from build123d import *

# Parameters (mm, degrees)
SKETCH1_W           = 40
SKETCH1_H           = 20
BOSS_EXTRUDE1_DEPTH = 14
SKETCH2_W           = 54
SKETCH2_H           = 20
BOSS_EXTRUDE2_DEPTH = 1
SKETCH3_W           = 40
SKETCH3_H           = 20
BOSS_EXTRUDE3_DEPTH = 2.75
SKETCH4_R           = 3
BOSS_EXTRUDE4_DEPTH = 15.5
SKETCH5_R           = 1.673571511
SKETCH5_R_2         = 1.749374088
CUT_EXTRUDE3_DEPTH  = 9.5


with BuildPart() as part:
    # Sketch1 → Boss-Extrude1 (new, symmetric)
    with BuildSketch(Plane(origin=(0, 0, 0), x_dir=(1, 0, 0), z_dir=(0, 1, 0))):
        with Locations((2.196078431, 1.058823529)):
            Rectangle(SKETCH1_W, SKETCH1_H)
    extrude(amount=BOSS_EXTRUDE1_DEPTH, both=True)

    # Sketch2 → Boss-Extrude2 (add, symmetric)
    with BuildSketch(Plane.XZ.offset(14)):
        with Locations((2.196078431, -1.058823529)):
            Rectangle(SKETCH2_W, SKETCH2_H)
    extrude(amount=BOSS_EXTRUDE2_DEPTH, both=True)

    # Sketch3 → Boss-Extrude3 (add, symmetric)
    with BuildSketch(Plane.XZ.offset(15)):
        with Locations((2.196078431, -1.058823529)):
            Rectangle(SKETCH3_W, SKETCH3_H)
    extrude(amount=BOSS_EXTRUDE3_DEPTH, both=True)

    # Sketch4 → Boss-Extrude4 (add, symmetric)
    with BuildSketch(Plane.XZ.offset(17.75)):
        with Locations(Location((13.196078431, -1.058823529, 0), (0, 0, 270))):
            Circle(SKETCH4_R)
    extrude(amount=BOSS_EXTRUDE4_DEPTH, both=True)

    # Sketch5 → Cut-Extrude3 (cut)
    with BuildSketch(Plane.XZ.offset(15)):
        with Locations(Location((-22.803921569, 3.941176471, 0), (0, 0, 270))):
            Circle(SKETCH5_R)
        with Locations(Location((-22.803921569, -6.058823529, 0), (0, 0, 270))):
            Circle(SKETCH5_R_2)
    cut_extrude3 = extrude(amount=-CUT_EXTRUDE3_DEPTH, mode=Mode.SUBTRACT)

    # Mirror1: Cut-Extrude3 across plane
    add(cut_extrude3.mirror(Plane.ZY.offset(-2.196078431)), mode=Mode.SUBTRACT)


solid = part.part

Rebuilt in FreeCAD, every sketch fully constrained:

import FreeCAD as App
import Part
import Sketcher
from FreeCAD import Vector


def add_polygon(sketch, points):
    """Adds a closed chain of lines whose ends are joined by coincident constraints."""
    first, n = sketch.GeometryCount, len(points)
    for a, b in zip(points, points[1:] + points[:1]):
        sketch.addGeometry(Part.LineSegment(App.Vector(*a, 0), App.Vector(*b, 0)), False)
    for i in range(n):
        sketch.addConstraint(Sketcher.Constraint("Coincident", first + i, 2, first + (i + 1) % n, 1))

doc = App.newDocument("Part")
params = doc.addObject("Spreadsheet::Sheet", "Params")
for row, (alias, value) in enumerate([
    ("sketch1_width", "40 mm"),
    ("sketch1_height", "20 mm"),
    ("pad1_length", "28 mm"),
    ("sketch2_width", "54 mm"),
    ("sketch2_height", "20 mm"),
    ("pad2_length", "2 mm"),
    ("sketch3_width", "40 mm"),
    ("sketch3_height", "20 mm"),
    ("pad3_length", "5.5 mm"),
    ("sketch4_diameter", "6 mm"),
    ("pad4_length", "31 mm"),
    ("pocket1_length", "9.5 mm"),
], start=1):
    params.set(f"A{row}", alias)
    params.set(f"B{row}", "=" + value)
    params.setAlias(f"B{row}", alias)

body = doc.addObject("PartDesign::Body", "Body")

# Sketch on XZ plane
sketch1 = body.newObject("Sketcher::SketchObject", "Sketch")
sketch1.AttachmentSupport = (doc.getObject("XZ_Plane"), [""])
sketch1.MapMode = "FlatFace"
add_polygon(sketch1, [(-18, -11), (-18, 9), (22, 9), (22, -11)])  # lines 0-3
sketch1.addConstraint([
    Sketcher.Constraint("Vertical", 0),
    Sketcher.Constraint("Horizontal", 1),
    Sketcher.Constraint("Vertical", 2),
    Sketcher.Constraint("Horizontal", 3),
    Sketcher.Constraint("DistanceX", 1, 1, 1, 2, 40.0),
    Sketcher.Constraint("DistanceY", 0, 1, 0, 2, 20.0),
    Sketcher.Constraint("DistanceX", 0, 2, -1, 1, 17.803922),
    Sketcher.Constraint("DistanceY", -1, 1, 0, 2, 8.941176),
])
sketch1.setExpression("Constraints[8]", "Params.sketch1_width")
sketch1.setExpression("Constraints[9]", "Params.sketch1_height")
pad1 = body.newObject("PartDesign::Pad", "Pad")
pad1.Profile = sketch1
pad1.setExpression("Length", "Params.pad1_length")
pad1.Midplane = True

# Sketch on XZ plane
sketch2 = body.newObject("Sketcher::SketchObject", "Sketch001")
sketch2.AttachmentSupport = (doc.getObject("XZ_Plane"), [""])
sketch2.MapMode = "FlatFace"
sketch2.AttachmentOffset = App.Placement(Vector(0, 0, 14), App.Rotation())
add_polygon(sketch2, [(-25, 9), (-25, -11), (29, -11), (29, 9)])  # lines 0-3
sketch2.addConstraint([
    Sketcher.Constraint("Vertical", 0),
    Sketcher.Constraint("Horizontal", 1),
    Sketcher.Constraint("Vertical", 2),
    Sketcher.Constraint("Horizontal", 3),
    Sketcher.Constraint("DistanceX", 1, 1, 1, 2, 54.0),
    Sketcher.Constraint("DistanceY", 0, 2, 0, 1, 20.0),
    Sketcher.Constraint("DistanceX", 0, 2, -1, 1, 24.803922),
    Sketcher.Constraint("DistanceY", 0, 2, -1, 1, 11.058824),
])
sketch2.setExpression("Constraints[8]", "Params.sketch2_width")
sketch2.setExpression("Constraints[9]", "Params.sketch2_height")
pad2 = body.newObject("PartDesign::Pad", "Pad001")
pad2.Profile = sketch2
pad2.setExpression("Length", "Params.pad2_length")
pad2.Midplane = True

# Sketch on XZ plane
sketch3 = body.newObject("Sketcher::SketchObject", "Sketch002")
sketch3.AttachmentSupport = (doc.getObject("XZ_Plane"), [""])
sketch3.MapMode = "FlatFace"
sketch3.AttachmentOffset = App.Placement(Vector(0, 0, 15), App.Rotation())
add_polygon(sketch3, [(-18, 9), (-18, -11), (22, -11), (22, 9)])  # lines 0-3
sketch3.addConstraint([
    Sketcher.Constraint("Vertical", 0),
    Sketcher.Constraint("Horizontal", 1),
    Sketcher.Constraint("Vertical", 2),
    Sketcher.Constraint("Horizontal", 3),
    Sketcher.Constraint("DistanceX", 1, 1, 1, 2, 40.0),
    Sketcher.Constraint("DistanceY", 0, 2, 0, 1, 20.0),
    Sketcher.Constraint("DistanceX", 0, 2, -1, 1, 17.803922),
    Sketcher.Constraint("DistanceY", 0, 2, -1, 1, 11.058824),
])
sketch3.setExpression("Constraints[8]", "Params.sketch3_width")
sketch3.setExpression("Constraints[9]", "Params.sketch3_height")
pad3 = body.newObject("PartDesign::Pad", "Pad002")
pad3.Profile = sketch3
pad3.setExpression("Length", "Params.pad3_length")
pad3.Midplane = True

# Sketch on XZ plane
sketch4 = body.newObject("Sketcher::SketchObject", "Sketch003")
sketch4.AttachmentSupport = (doc.getObject("XZ_Plane"), [""])
sketch4.MapMode = "FlatFace"
sketch4.AttachmentOffset = App.Placement(Vector(0, 0, 17.75), App.Rotation())
sketch4.addGeometry(Part.Circle(Vector(13.2, -1.1, 0), Vector(0, 0, 1), 3), False)
sketch4.addConstraint([
    Sketcher.Constraint("Diameter", 0, 6.0),
    Sketcher.Constraint("DistanceX", -1, 1, 0, 3, 13.196078),
    Sketcher.Constraint("DistanceY", 0, 3, -1, 1, 1.058824),
])
sketch4.setExpression("Constraints[0]", "Params.sketch4_diameter")
pad4 = body.newObject("PartDesign::Pad", "Pad003")
pad4.Profile = sketch4
pad4.setExpression("Length", "Params.pad4_length")
pad4.Midplane = True

# Sketch on XZ plane
sketch5 = body.newObject("Sketcher::SketchObject", "Sketch004")
sketch5.AttachmentSupport = (doc.getObject("XZ_Plane"), [""])
sketch5.MapMode = "FlatFace"
sketch5.AttachmentOffset = App.Placement(Vector(0, 0, 15), App.Rotation())
sketch5.addGeometry([
    Part.Circle(Vector(-22.8, 3.9, 0), Vector(0, 0, 1), 1.7),
    Part.Circle(Vector(-22.8, -6.1, 0), Vector(0, 0, 1), 1.7),
], False)
sketch5.addConstraint([
    Sketcher.Constraint("Vertical", 0, 3, 1, 3),
    Sketcher.Constraint("DistanceY", 1, 3, 0, 3, 10.0),
    Sketcher.Constraint("Diameter", 1, 3.498748),
    Sketcher.Constraint("Diameter", 0, 3.347143),
    Sketcher.Constraint("DistanceX", 0, 3, -1, 1, 22.803922),
    Sketcher.Constraint("DistanceY", -1, 1, 0, 3, 3.941176),
])
pocket1 = body.newObject("PartDesign::Pocket", "Pocket")
pocket1.Profile = sketch5
pocket1.setExpression("Length", "Params.pocket1_length")
doc.recompute()

datumplane = body.newObject("PartDesign::Plane", "DatumPlane")
datumplane.AttachmentSupport = (doc.getObject("YZ_Plane"), [""])
datumplane.MapMode = "FlatFace"
datumplane.AttachmentOffset = App.Placement(Vector(0, 0, 2.196078), App.Rotation())
mirrored = body.newObject("PartDesign::Mirrored", "Mirrored")
mirrored.Originals = [pocket1]
mirrored.MirrorPlane = (datumplane, [""])
body.Tip = mirrored

doc.recompute()
